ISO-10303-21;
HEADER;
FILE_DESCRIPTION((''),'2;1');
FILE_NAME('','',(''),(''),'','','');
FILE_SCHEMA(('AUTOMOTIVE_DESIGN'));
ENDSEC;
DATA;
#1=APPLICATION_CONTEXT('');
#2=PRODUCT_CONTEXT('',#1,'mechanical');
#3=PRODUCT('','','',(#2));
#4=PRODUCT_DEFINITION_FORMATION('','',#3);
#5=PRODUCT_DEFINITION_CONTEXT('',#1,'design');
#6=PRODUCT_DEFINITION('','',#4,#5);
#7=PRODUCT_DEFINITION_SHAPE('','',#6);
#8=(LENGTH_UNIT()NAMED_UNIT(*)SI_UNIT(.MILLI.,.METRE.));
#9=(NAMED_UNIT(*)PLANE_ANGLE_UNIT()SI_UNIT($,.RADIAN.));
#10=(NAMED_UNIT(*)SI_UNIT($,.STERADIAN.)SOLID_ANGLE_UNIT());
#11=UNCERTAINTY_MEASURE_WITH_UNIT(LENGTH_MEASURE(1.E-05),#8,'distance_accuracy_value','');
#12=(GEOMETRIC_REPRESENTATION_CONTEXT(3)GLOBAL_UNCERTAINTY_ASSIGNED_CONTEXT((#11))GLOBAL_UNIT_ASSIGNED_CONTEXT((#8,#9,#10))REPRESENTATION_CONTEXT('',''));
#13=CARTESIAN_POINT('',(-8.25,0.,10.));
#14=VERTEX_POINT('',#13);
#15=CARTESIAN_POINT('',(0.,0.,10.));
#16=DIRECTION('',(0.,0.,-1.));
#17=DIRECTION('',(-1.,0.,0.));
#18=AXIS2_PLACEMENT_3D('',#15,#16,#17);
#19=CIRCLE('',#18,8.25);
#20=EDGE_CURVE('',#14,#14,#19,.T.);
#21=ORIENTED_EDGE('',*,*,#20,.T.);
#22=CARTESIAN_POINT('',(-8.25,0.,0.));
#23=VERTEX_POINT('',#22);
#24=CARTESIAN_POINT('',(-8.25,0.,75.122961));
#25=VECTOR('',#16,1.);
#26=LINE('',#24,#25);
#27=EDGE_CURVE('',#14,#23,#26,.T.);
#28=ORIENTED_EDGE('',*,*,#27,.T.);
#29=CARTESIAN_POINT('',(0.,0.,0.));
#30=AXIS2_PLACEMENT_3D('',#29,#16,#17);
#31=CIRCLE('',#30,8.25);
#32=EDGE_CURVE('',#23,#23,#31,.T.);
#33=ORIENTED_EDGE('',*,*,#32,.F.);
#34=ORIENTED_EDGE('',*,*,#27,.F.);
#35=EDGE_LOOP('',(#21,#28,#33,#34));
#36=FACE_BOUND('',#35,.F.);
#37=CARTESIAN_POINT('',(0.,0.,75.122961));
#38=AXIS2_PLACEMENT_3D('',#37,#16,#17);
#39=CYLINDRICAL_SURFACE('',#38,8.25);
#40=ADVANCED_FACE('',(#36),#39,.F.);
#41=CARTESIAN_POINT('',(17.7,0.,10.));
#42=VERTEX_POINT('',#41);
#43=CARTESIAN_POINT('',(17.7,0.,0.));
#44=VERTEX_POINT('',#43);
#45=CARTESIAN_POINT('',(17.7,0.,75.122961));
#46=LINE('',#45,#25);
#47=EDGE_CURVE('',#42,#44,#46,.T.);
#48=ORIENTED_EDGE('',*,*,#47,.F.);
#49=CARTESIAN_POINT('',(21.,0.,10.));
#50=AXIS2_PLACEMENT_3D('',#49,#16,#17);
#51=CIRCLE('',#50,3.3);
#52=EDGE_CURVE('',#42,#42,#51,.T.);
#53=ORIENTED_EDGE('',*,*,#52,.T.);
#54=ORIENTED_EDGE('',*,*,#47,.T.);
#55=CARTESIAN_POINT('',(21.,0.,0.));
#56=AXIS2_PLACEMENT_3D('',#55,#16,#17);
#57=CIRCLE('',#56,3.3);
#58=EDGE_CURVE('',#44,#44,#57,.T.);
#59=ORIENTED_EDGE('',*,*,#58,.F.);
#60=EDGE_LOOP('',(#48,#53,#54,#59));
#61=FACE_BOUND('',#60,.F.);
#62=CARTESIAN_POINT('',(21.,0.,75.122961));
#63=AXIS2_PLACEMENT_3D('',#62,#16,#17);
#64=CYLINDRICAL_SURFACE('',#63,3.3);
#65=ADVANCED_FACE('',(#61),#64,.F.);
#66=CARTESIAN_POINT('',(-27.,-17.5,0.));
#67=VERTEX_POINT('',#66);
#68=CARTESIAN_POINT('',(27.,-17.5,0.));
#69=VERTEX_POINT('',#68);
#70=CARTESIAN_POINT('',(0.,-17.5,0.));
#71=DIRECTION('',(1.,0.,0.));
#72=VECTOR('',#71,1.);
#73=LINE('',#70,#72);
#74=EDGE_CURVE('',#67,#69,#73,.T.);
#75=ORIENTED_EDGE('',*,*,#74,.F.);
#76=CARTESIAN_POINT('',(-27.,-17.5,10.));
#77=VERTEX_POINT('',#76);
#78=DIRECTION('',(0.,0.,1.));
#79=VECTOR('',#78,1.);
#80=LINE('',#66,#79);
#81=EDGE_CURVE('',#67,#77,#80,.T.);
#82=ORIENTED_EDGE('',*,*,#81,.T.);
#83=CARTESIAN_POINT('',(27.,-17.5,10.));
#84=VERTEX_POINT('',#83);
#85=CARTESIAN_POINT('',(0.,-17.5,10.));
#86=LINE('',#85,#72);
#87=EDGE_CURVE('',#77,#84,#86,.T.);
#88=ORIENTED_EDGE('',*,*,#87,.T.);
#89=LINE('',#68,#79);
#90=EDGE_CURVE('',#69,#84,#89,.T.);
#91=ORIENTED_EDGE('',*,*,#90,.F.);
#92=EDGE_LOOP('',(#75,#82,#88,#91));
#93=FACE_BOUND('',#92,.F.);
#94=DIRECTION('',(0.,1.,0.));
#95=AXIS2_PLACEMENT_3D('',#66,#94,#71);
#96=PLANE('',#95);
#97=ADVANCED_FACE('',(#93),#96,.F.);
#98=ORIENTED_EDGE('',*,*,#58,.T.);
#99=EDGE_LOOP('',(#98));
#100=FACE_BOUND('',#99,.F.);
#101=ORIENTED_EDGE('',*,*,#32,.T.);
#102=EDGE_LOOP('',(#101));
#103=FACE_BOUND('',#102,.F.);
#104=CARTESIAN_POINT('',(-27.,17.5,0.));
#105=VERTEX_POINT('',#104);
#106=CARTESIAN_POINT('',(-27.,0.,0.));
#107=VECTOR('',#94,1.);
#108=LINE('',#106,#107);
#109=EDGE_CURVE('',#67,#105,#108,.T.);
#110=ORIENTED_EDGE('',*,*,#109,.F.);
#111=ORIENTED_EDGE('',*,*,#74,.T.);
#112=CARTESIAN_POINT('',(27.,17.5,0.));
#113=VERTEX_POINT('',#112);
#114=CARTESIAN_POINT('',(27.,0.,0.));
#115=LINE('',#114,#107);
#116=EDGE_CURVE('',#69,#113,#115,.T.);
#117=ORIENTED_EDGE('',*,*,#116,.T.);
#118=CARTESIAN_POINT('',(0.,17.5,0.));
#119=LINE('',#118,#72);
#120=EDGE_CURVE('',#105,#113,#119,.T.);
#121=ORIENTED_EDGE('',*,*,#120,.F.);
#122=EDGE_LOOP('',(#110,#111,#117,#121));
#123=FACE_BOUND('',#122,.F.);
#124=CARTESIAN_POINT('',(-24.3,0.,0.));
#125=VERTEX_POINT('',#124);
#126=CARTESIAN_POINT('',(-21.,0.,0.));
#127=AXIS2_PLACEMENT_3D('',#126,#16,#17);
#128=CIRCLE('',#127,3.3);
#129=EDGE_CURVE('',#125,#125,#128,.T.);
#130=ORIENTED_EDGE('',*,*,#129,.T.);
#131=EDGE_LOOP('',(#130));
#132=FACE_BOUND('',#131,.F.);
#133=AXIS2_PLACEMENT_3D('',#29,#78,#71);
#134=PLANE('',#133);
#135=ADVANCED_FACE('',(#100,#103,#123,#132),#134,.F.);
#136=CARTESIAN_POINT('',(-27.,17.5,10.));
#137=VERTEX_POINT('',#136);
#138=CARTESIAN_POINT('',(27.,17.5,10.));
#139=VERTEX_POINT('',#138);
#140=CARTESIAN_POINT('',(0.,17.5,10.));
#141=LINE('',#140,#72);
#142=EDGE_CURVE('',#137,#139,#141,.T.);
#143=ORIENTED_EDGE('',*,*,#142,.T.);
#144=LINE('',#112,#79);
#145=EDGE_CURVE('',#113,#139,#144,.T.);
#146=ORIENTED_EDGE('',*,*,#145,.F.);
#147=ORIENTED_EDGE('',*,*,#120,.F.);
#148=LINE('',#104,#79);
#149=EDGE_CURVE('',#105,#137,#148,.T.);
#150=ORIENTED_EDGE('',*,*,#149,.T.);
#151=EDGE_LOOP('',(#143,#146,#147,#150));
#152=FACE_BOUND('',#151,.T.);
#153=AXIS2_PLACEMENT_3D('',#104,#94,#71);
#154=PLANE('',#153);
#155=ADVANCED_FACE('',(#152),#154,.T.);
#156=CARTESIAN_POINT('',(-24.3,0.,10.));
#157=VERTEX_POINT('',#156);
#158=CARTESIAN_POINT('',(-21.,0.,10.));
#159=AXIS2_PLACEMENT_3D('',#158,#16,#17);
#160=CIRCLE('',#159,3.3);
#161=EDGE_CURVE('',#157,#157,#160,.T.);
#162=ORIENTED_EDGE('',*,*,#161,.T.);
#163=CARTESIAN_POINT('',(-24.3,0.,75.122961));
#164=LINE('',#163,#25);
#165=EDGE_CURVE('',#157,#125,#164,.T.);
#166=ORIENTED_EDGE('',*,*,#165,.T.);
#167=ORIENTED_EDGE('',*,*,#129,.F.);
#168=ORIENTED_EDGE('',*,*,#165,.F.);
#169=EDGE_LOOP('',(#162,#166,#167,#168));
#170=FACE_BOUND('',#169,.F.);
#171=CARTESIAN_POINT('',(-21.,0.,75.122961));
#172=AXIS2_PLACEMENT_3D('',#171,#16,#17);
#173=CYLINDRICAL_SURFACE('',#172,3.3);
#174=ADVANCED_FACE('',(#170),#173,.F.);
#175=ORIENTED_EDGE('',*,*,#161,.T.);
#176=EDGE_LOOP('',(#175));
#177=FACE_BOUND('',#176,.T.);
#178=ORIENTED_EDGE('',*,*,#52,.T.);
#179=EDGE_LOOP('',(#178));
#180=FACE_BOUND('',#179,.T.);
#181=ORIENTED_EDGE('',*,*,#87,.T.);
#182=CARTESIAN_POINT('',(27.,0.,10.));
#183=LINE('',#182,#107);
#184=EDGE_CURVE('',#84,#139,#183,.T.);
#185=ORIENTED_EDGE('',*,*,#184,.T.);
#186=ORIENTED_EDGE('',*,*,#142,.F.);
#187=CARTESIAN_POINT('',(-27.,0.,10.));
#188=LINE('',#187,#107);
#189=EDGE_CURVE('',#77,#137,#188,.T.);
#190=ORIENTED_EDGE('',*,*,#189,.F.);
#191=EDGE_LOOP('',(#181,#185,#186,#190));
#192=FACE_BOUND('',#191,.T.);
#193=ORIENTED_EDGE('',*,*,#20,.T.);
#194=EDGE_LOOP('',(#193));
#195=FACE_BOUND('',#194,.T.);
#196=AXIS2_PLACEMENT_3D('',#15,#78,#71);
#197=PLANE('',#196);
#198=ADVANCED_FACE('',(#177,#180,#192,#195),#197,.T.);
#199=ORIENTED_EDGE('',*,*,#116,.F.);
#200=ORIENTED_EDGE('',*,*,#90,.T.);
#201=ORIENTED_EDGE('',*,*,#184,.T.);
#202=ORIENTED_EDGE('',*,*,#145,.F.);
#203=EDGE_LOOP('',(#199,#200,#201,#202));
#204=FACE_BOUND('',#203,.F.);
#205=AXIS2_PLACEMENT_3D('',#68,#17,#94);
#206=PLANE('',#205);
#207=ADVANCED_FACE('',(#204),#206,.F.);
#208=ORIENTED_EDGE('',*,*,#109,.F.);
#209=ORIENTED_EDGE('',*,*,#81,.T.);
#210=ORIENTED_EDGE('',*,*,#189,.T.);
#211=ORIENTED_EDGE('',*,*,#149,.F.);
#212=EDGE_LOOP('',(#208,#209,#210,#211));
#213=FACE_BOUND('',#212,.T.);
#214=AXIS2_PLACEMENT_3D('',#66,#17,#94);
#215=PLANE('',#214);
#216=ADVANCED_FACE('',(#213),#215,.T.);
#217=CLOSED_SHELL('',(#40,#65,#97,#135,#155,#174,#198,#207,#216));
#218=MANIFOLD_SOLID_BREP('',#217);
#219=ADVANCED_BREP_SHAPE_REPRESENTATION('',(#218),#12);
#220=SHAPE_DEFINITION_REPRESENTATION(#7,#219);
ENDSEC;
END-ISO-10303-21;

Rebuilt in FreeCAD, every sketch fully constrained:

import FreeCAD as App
import Part
import Sketcher
from FreeCAD import Vector


def add_polygon(sketch, points):
    """Adds a closed chain of lines whose ends are joined by coincident constraints."""
    first, n = sketch.GeometryCount, len(points)
    for a, b in zip(points, points[1:] + points[:1]):
        sketch.addGeometry(Part.LineSegment(App.Vector(*a, 0), App.Vector(*b, 0)), False)
    for i in range(n):
        sketch.addConstraint(Sketcher.Constraint("Coincident", first + i, 2, first + (i + 1) % n, 1))

doc = App.newDocument("Part")
body = doc.addObject("PartDesign::Body", "Body")

# Sketch on XY plane
sketch1 = body.newObject("Sketcher::SketchObject", "Sketch")
sketch1.AttachmentSupport = (doc.getObject("XY_Plane"), [""])
sketch1.MapMode = "FlatFace"
add_polygon(sketch1, [(-27, 18), (-27, -18), (27, -18), (27, 18)])  # lines 0-3
sketch1.addConstraint([
    Sketcher.Constraint("Vertical", 0),
    Sketcher.Constraint("Horizontal", 1),
    Sketcher.Constraint("Vertical", 2),
    Sketcher.Constraint("Horizontal", 3),
    Sketcher.Constraint("Symmetric", 0, 2, 2, 2, -1, 1),
    Sketcher.Constraint("DistanceX", 1, 1, 1, 2, 54.0),
    Sketcher.Constraint("DistanceY", 0, 2, 0, 1, 35.0),
])
pad1 = body.newObject("PartDesign::Pad", "Pad")
pad1.Profile = sketch1
pad1.Length = 10

# Sketch on XY plane
sketch2 = body.newObject("Sketcher::SketchObject", "Sketch001")
sketch2.AttachmentSupport = (doc.getObject("XY_Plane"), [""])
sketch2.MapMode = "FlatFace"
sketch2.AttachmentOffset = App.Placement(Vector(0, 0, 10), App.Rotation())
sketch2.addGeometry(Part.Circle(Vector(0, 0, 0), Vector(0, 0, 1), 8), False)
sketch2.addConstraint([
    Sketcher.Constraint("Coincident", 0, 3, -1, 1),
    Sketcher.Constraint("Diameter", 0, 16.5),
])
doc.recompute()
hole = body.newObject("PartDesign::Hole", "Hole")
hole.Profile = sketch2
hole.ThreadType = "None"
hole.Diameter = 16.5
hole.DepthType = "ThroughAll"

# Sketch on XY plane
sketch3 = body.newObject("Sketcher::SketchObject", "Sketch002")
sketch3.AttachmentSupport = (doc.getObject("XY_Plane"), [""])
sketch3.MapMode = "FlatFace"
sketch3.AttachmentOffset = App.Placement(Vector(0, 0, 10), App.Rotation())
sketch3.addGeometry([
    Part.Circle(Vector(-21, 0, 0), Vector(0, 0, 1), 3.3),
    Part.Circle(Vector(21, 0, 0), Vector(0, 0, 1), 3.3),
], False)
sketch3.addConstraint([
    Sketcher.Constraint("Equal", 0, 1),
    Sketcher.Constraint("Symmetric", 0, 3, 1, 3, -1, 1),
    Sketcher.Constraint("PointOnObject", 0, 3, -1),
    Sketcher.Constraint("Diameter", 0, 6.6),
    Sketcher.Constraint("DistanceX", 0, 3, -1, 1, 21.0),
])
doc.recompute()
hole2 = body.newObject("PartDesign::Hole", "Hole001")
hole2.Profile = sketch3
hole2.ThreadType = "None"
hole2.Diameter = 6.6
hole2.DepthType = "ThroughAll"

doc.recompute()
